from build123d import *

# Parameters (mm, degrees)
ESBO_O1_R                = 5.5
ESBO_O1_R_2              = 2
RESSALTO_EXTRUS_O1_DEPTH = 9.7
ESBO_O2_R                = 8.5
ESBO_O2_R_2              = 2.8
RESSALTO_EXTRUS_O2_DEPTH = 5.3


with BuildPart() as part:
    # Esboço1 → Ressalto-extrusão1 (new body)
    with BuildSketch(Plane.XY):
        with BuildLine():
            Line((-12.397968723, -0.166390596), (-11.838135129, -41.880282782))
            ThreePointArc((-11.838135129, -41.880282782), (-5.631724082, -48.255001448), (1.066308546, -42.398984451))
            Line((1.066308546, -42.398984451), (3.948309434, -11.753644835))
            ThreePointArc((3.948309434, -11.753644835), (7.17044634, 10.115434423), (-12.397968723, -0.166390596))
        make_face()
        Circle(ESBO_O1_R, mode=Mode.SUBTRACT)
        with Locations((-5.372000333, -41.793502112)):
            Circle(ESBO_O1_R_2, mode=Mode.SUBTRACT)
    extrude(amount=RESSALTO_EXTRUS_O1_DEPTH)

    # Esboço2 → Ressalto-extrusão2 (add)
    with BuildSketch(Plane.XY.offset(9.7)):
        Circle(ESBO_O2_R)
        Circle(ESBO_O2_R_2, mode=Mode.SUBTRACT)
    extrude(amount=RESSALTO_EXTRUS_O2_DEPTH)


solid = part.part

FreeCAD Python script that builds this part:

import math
import FreeCAD as App
import Part
import Sketcher
from FreeCAD import Vector
Q = App.Units.Quantity

doc = App.newDocument("Part")
body = doc.addObject("PartDesign::Body", "Body")

# Sketch on XY plane
sketch1 = body.newObject("Sketcher::SketchObject", "Sketch")
sketch1.AttachmentSupport = (doc.getObject("XY_Plane"), [""])
sketch1.MapMode = "FlatFace"
sketch1.addGeometry([
    Part.LineSegment(Vector(-12.4, -0.2, 0), Vector(-11.8, -41.9, 0)),  # 0
    Part.ArcOfCircle(Part.Circle(Vector(-5.4, -41.8, 0), Vector(0, 0, 1), 6.5), math.radians(-179), math.radians(-5)),  # 1
    Part.LineSegment(Vector(1.1, -42.4, 0), Vector(3.9, -11.8, 0)),  # 2
    Part.ArcOfCircle(Part.Circle(Vector(0, 0, 0), Vector(0, 0, 1), 12.4), math.radians(-71), math.radians(181)),  # 3
    Part.Circle(Vector(-5.4, -41.8, 0), Vector(0, 0, 1), 2),  # 4
    Part.Circle(Vector(0, 0, 0), Vector(0, 0, 1), 5.5),  # 5
], False)
sketch1.addConstraint([
    Sketcher.Constraint("Tangent", 0, 2, 1, 1),
    Sketcher.Constraint("Tangent", 1, 2, 2, 1),
    Sketcher.Constraint("Coincident", 2, 2, 3, 1),
    Sketcher.Constraint("Tangent", 3, 2, 0, 1),
    Sketcher.Constraint("Coincident", 3, 3, -1, 1),
    Sketcher.Constraint("Coincident", 5, 3, -1, 1),
    Sketcher.Constraint("Coincident", 4, 3, 1, 3),
    Sketcher.Constraint("Diameter", 4, Q("4 mm")),
    Sketcher.Constraint("Diameter", 5, Q("11 mm")),
    Sketcher.Constraint("DistanceX", 1, 3, -1, 1, Q("5.372 mm")),
    Sketcher.Constraint("Radius", 1, Q("6.466717 mm")),
    Sketcher.Constraint("Radius", 3, Q("12.399085 mm")),
    Sketcher.Constraint("DistanceX", 1, 2, 2, 2, Q("2.882001 mm")),
    Sketcher.Constraint("Distance", 0, Q("41.717649 mm")),
])
pad1 = body.newObject("PartDesign::Pad", "Pad")
pad1.Profile = sketch1
pad1.Length = 9.7

# Sketch on XY plane
sketch2 = body.newObject("Sketcher::SketchObject", "Sketch001")
sketch2.AttachmentSupport = (doc.getObject("XY_Plane"), [""])
sketch2.MapMode = "FlatFace"
sketch2.AttachmentOffset = App.Placement(Vector(0, 0, 9.7), App.Rotation())
sketch2.addGeometry([
    Part.Circle(Vector(0, 0, 0), Vector(0, 0, 1), 8.5),
    Part.Circle(Vector(0, 0, 0), Vector(0, 0, 1), 2.8),
], False)
sketch2.addConstraint([
    Sketcher.Constraint("Coincident", 0, 3, -1, 1),
    Sketcher.Constraint("Coincident", 1, 3, -1, 1),
    Sketcher.Constraint("Diameter", 0, Q("17 mm")),
    Sketcher.Constraint("Diameter", 1, Q("5.6 mm")),
])
pad2 = body.newObject("PartDesign::Pad", "Pad001")
pad2.Profile = sketch2
pad2.Length = 5.3

doc.recompute()
